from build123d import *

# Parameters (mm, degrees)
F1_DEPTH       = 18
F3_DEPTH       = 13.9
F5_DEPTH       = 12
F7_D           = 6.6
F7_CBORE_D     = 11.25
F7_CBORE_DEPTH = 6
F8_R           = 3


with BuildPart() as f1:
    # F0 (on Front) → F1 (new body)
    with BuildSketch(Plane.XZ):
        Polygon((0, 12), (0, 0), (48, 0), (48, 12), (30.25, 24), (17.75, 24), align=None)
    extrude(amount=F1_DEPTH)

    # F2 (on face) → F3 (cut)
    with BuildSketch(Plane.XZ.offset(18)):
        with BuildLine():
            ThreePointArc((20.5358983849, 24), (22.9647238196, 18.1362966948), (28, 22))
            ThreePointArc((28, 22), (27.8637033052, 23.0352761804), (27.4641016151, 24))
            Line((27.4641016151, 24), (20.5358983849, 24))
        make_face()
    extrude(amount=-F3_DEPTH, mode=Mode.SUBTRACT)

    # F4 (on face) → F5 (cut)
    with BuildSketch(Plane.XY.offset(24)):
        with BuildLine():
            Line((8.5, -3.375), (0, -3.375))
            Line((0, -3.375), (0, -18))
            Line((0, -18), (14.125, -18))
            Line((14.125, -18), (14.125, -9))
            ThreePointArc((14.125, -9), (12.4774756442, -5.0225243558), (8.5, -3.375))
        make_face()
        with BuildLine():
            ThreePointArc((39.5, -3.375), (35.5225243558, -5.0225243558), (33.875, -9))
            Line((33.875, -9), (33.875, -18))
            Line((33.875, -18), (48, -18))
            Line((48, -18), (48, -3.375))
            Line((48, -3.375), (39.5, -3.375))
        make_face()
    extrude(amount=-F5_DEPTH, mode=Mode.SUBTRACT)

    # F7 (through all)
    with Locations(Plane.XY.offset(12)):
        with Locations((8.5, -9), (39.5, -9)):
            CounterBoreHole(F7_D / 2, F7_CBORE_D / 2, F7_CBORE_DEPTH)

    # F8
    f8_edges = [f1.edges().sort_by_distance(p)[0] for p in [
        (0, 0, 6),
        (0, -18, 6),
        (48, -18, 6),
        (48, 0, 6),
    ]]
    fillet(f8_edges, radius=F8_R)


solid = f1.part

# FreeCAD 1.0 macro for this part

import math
import FreeCAD as App
import Part
import Sketcher
Q = App.Units.Quantity


def edges_at(feature, points):
    """Names of the edges that pass closest to the given points."""
    edges = feature.Shape.Edges
    near = lambda p: min(range(len(edges)), key=lambda i: edges[i].distToShape(Part.Vertex(*p))[0])
    return sorted({f"Edge{near(p) + 1}" for p in points})

doc = App.newDocument("Part")
body = doc.addObject("PartDesign::Body", "Body")

# Sketch on XZ plane
sketch1 = body.newObject("Sketcher::SketchObject", "Sketch")
sketch1.AttachmentSupport = (doc.getObject("XZ_Plane"), [""])
sketch1.MapMode = "FlatFace"
sketch1.addGeometry([
    Part.LineSegment(App.Vector(0, 12, 0), App.Vector(0, 0, 0)),  # 0
    Part.LineSegment(App.Vector(0, 0, 0), App.Vector(48, 0, 0)),  # 1
    Part.LineSegment(App.Vector(48, 0, 0), App.Vector(48, 12, 0)),  # 2
    Part.LineSegment(App.Vector(48, 12, 0), App.Vector(30, 24, 0)),  # 3
    Part.LineSegment(App.Vector(30, 24, 0), App.Vector(18, 24, 0)),  # 4
    Part.LineSegment(App.Vector(18, 24, 0), App.Vector(0, 12, 0)),  # 5
], False)
sketch1.addConstraint([
    Sketcher.Constraint("Coincident", 0, 2, 1, 1),
    Sketcher.Constraint("Coincident", 1, 2, 2, 1),
    Sketcher.Constraint("Coincident", 2, 2, 3, 1),
    Sketcher.Constraint("Coincident", 3, 2, 4, 1),
    Sketcher.Constraint("Coincident", 4, 2, 5, 1),
    Sketcher.Constraint("Coincident", 5, 2, 0, 1),
    Sketcher.Constraint("Vertical", 0),
    Sketcher.Constraint("Horizontal", 1),
    Sketcher.Constraint("Vertical", 2),
    Sketcher.Constraint("Horizontal", 4),
    Sketcher.Constraint("Coincident", 0, 2, -1, 1),
    Sketcher.Constraint("Horizontal", 2, 2, 5, 2),
    Sketcher.Constraint("Equal", 3, 5),
    Sketcher.Constraint("DistanceX", 1, 1, 1, 2, Q("48 mm")),
    Sketcher.Constraint("DistanceY", 0, 2, 0, 1, Q("12 mm")),
    Sketcher.Constraint("DistanceX", 4, 2, 4, 1, Q("12.5 mm")),
    Sketcher.Constraint("DistanceY", -1, 1, 3, 2, Q("24 mm")),
])
pad1 = body.newObject("PartDesign::Pad", "Pad")
pad1.Profile = sketch1
pad1.Length = 18

# Sketch on XZ plane
sketch2 = body.newObject("Sketcher::SketchObject", "Sketch001")
sketch2.AttachmentSupport = (doc.getObject("XZ_Plane"), [""])
sketch2.MapMode = "FlatFace"
sketch2.AttachmentOffset = App.Placement(App.Vector(0, 0, 18), App.Rotation())
sketch2.addGeometry([
    Part.ArcOfCircle(Part.Circle(App.Vector(24, 22, 0), App.Vector(0, 0, 1), 4), math.radians(150), math.radians(360)),
    Part.ArcOfCircle(Part.Circle(App.Vector(24, 22, 0), App.Vector(0, 0, 1), 4), math.radians(0), math.radians(30)),
    Part.LineSegment(App.Vector(27.5, 24, 0), App.Vector(20.5, 24, 0)),
], False)
sketch2.addConstraint([
    Sketcher.Constraint("Tangent", 0, 2, 1, 1),
    Sketcher.Constraint("Coincident", 1, 2, 2, 1),
    Sketcher.Constraint("Coincident", 2, 2, 0, 1),
    Sketcher.Constraint("Horizontal", 2),
    Sketcher.Constraint("Equal", 0, 1),
    Sketcher.Constraint("Horizontal", 1, 3, 0, 2),
    Sketcher.Constraint("Radius", 0, Q("4 mm")),
    Sketcher.Constraint("DistanceX", -1, 1, 0, 3, Q("24 mm")),
    Sketcher.Constraint("DistanceY", -1, 1, 0, 3, Q("22 mm")),
    Sketcher.Constraint("DistanceY", -1, 1, 1, 2, Q("24 mm")),
])
pocket1 = body.newObject("PartDesign::Pocket", "Pocket")
pocket1.Profile = sketch2
pocket1.Length = 13.9

# Sketch on XY plane
sketch3 = body.newObject("Sketcher::SketchObject", "Sketch002")
sketch3.AttachmentSupport = (doc.getObject("XY_Plane"), [""])
sketch3.MapMode = "FlatFace"
sketch3.AttachmentOffset = App.Placement(App.Vector(0, 0, 24), App.Rotation())
sketch3.addGeometry([
    Part.LineSegment(App.Vector(8, -3, 0), App.Vector(0, -3, 0)),  # 0
    Part.LineSegment(App.Vector(0, -3, 0), App.Vector(0, -18, 0)),  # 1
    Part.LineSegment(App.Vector(0, -18, 0), App.Vector(14, -18, 0)),  # 2
    Part.LineSegment(App.Vector(14, -18, 0), App.Vector(14, -9, 0)),  # 3
    Part.ArcOfCircle(Part.Circle(App.Vector(8, -9, 0), App.Vector(0, 0, 1), 6), math.radians(0), math.radians(90)),  # 4
    Part.ArcOfCircle(Part.Circle(App.Vector(40, -9, 0), App.Vector(0, 0, 1), 6), math.radians(90), math.radians(180)),  # 5
    Part.LineSegment(App.Vector(34, -9, 0), App.Vector(34, -18, 0)),  # 6
    Part.LineSegment(App.Vector(34, -18, 0), App.Vector(48, -18, 0)),  # 7
    Part.LineSegment(App.Vector(48, -18, 0), App.Vector(48, -3, 0)),  # 8
    Part.LineSegment(App.Vector(48, -3, 0), App.Vector(40, -3, 0)),  # 9
], False)
sketch3.addConstraint([
    Sketcher.Constraint("Coincident", 0, 2, 1, 1),
    Sketcher.Constraint("Coincident", 1, 2, 2, 1),
    Sketcher.Constraint("Coincident", 2, 2, 3, 1),
    Sketcher.Constraint("Tangent", 3, 2, 4, 1),
    Sketcher.Constraint("Tangent", 4, 2, 0, 1),
    Sketcher.Constraint("Tangent", 5, 2, 6, 1),
    Sketcher.Constraint("Coincident", 6, 2, 7, 1),
    Sketcher.Constraint("Coincident", 7, 2, 8, 1),
    Sketcher.Constraint("Coincident", 8, 2, 9, 1),
    Sketcher.Constraint("Tangent", 9, 2, 5, 1),
    Sketcher.Constraint("Horizontal", 0),
    Sketcher.Constraint("Vertical", 1),
    Sketcher.Constraint("Horizontal", 2),
    Sketcher.Constraint("Vertical", 3),
    Sketcher.Constraint("Vertical", 6),
    Sketcher.Constraint("Horizontal", 7),
    Sketcher.Constraint("Vertical", 8),
    Sketcher.Constraint("Horizontal", 9),
    Sketcher.Constraint("Equal", 4, 5),
    Sketcher.Constraint("PointOnObject", 0, 2, -2),
    Sketcher.Constraint("Horizontal", 4, 3, 5, 3),
    Sketcher.Constraint("Horizontal", 2, 2, 6, 2),
    Sketcher.Constraint("Equal", 2, 7),
    Sketcher.Constraint("DistanceY", 3, 1, 3, 2, Q("9 mm")),
    Sketcher.Constraint("DistanceX", 0, 2, 0, 1, Q("8.5 mm")),
    Sketcher.Constraint("DistanceY", 4, 3, -1, 1, Q("9 mm")),
    Sketcher.Constraint("DistanceX", -1, 1, 7, 2, Q("48 mm")),
    Sketcher.Constraint("Radius", 4, Q("5.625 mm")),
])
pocket2 = body.newObject("PartDesign::Pocket", "Pocket001")
pocket2.Profile = sketch3
pocket2.Length = 12

# Sketch on XY plane
sketch4 = body.newObject("Sketcher::SketchObject", "Sketch003")
sketch4.AttachmentSupport = (doc.getObject("XY_Plane"), [""])
sketch4.MapMode = "FlatFace"
sketch4.AttachmentOffset = App.Placement(App.Vector(0, 0, 12), App.Rotation())
sketch4.addGeometry([
    Part.Circle(App.Vector(8.5, -9, 0), App.Vector(0, 0, 1), 3.3),
    Part.Circle(App.Vector(39.5, -9, 0), App.Vector(0, 0, 1), 3.3),
], False)
sketch4.addConstraint([
    Sketcher.Constraint("Equal", 0, 1),
    Sketcher.Constraint("Horizontal", 0, 3, 1, 3),
    Sketcher.Constraint("Diameter", 0, Q("6.6 mm")),
    Sketcher.Constraint("DistanceY", 0, 3, -1, 1, Q("9 mm")),
    Sketcher.Constraint("DistanceX", 0, 3, 1, 3, Q("31 mm")),
    Sketcher.Constraint("DistanceX", -1, 1, 0, 3, Q("8.5 mm")),
])
doc.recompute()
hole = body.newObject("PartDesign::Hole", "Hole")
hole.Profile = sketch4
hole.ThreadType = "None"
hole.Diameter = 6.6
hole.DepthType = "ThroughAll"
hole.HoleCutType = "Counterbore"
hole.HoleCutDiameter = 11.25
hole.HoleCutDepth = 6
doc.recompute()

fillet = body.newObject("PartDesign::Fillet", "Fillet")
fillet.Base = (hole, edges_at(hole, [
    (0, 0, 6),
    (0, -18, 6),
    (48, -18, 6),
    (48, 0, 6),
]))
fillet.Radius = 3

doc.recompute()
